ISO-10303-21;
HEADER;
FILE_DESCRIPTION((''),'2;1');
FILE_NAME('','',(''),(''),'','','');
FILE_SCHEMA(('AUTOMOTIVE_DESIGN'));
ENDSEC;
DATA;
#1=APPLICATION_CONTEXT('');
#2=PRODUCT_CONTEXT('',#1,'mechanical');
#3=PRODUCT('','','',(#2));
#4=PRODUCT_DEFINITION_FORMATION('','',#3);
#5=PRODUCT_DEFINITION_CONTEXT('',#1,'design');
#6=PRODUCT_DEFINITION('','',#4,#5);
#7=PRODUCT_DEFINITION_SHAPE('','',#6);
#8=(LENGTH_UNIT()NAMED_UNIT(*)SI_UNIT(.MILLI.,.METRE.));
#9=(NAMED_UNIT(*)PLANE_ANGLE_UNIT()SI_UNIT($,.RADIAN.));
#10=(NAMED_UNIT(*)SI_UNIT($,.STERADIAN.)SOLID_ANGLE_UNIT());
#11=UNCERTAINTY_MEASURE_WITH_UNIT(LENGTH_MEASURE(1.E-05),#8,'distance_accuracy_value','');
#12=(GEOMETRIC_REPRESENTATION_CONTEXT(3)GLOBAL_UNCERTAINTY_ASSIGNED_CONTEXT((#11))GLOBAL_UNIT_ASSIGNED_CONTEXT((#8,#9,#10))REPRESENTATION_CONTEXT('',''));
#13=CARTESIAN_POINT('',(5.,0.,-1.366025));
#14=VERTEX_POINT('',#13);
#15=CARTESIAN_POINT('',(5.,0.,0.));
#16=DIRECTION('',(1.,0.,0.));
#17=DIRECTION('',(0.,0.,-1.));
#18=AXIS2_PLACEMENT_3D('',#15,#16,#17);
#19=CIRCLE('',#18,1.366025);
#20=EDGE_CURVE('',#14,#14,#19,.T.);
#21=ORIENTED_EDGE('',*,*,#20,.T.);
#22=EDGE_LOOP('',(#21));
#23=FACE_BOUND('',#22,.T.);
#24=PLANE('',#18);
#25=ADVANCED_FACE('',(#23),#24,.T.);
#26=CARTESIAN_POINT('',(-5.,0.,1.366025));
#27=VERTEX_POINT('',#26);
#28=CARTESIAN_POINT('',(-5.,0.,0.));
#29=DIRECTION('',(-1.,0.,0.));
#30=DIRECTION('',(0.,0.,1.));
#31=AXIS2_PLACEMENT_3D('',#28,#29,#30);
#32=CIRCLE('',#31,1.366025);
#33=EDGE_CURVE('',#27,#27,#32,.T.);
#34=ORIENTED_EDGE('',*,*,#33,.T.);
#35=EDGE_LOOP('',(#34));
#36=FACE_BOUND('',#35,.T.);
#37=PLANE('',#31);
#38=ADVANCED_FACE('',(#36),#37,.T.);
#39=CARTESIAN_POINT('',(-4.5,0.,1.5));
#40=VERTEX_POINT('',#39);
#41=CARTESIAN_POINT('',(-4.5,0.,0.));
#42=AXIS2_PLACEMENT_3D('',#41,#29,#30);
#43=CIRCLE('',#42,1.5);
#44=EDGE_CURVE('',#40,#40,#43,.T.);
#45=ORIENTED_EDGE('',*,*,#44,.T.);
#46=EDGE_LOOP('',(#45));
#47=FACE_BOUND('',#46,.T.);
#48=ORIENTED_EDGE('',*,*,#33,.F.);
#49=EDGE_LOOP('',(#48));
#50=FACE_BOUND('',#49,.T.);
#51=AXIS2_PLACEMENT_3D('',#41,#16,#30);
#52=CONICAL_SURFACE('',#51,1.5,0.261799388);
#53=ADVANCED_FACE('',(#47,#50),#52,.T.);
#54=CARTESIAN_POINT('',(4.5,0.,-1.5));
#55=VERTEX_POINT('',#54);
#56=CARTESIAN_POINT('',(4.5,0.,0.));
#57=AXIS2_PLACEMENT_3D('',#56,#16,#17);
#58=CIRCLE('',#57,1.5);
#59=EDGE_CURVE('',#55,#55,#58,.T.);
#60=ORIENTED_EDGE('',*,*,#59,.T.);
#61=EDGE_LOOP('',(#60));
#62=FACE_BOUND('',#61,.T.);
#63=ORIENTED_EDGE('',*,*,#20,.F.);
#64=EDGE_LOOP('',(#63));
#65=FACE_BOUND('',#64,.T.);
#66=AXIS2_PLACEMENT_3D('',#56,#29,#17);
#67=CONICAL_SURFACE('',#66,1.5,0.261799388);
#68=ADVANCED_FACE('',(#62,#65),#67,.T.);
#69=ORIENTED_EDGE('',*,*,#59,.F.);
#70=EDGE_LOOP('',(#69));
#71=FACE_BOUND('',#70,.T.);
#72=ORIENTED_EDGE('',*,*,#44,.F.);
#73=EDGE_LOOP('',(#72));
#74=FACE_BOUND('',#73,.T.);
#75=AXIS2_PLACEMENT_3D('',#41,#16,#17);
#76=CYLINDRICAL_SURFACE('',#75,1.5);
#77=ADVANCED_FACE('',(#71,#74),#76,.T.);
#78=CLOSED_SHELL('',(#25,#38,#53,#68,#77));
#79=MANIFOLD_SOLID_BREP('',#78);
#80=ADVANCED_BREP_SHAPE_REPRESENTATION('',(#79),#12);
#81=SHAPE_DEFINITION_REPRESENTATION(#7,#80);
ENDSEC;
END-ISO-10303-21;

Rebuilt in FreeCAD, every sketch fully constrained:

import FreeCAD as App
import Part
import Sketcher

V = App.Vector
Q = App.Units.Quantity

doc = App.newDocument("Part")
body = doc.addObject("PartDesign::Body", "Body")

# Sketch on YZ plane
sketch1 = body.newObject("Sketcher::SketchObject", "Sketch")
sketch1.AttachmentSupport = (doc.getObject("YZ_Plane"), [""])
sketch1.MapMode = "FlatFace"
sketch1.addGeometry(Part.Circle(V(0, 0, 0), V(0, 0, 1), 1.5), False)
sketch1.addConstraint([
    Sketcher.Constraint("Coincident", 0, 3, -1, 1),
    Sketcher.Constraint("Diameter", 0, Q("3 mm")),
])
pad1 = body.newObject("PartDesign::Pad", "Pad")
pad1.Profile = sketch1
pad1.Type = "TwoLengths"
pad1.Length = 4.5
pad1.Length2 = 4.5

# Sketch on YZ plane
sketch2 = body.newObject("Sketcher::SketchObject", "Sketch001")
sketch2.AttachmentSupport = (doc.getObject("YZ_Plane"), [""])
sketch2.MapMode = "FlatFace"
sketch2.AttachmentOffset = App.Placement(V(0, 0, 4.5), App.Rotation())
sketch2.addGeometry(Part.Circle(V(0, 0, 0), V(0, 0, 1), 1.5), False)
sketch2.addConstraint([
    Sketcher.Constraint("Coincident", 0, 3, -1, 1),
    Sketcher.Constraint("Diameter", 0, Q("3 mm")),
])
pad2 = body.newObject("PartDesign::Pad", "Pad001")
pad2.Profile = sketch2
pad2.Length = 0.5
pad2.TaperAngle = -15

# Sketch on YZ plane
sketch3 = body.newObject("Sketcher::SketchObject", "Sketch002")
sketch3.AttachmentSupport = (doc.getObject("YZ_Plane"), [""])
sketch3.MapMode = "FlatFace"
sketch3.AttachmentOffset = App.Placement(V(0, 0, -4.5), App.Rotation())
sketch3.addGeometry(Part.Circle(V(0, 0, 0), V(0, 0, 1), 1.5), False)
sketch3.addConstraint([
    Sketcher.Constraint("Coincident", 0, 3, -1, 1),
    Sketcher.Constraint("Diameter", 0, Q("3 mm")),
])
pad3 = body.newObject("PartDesign::Pad", "Pad002")
pad3.Profile = sketch3
pad3.Length = 0.5
pad3.Reversed = True
pad3.TaperAngle = -15

doc.recompute()
